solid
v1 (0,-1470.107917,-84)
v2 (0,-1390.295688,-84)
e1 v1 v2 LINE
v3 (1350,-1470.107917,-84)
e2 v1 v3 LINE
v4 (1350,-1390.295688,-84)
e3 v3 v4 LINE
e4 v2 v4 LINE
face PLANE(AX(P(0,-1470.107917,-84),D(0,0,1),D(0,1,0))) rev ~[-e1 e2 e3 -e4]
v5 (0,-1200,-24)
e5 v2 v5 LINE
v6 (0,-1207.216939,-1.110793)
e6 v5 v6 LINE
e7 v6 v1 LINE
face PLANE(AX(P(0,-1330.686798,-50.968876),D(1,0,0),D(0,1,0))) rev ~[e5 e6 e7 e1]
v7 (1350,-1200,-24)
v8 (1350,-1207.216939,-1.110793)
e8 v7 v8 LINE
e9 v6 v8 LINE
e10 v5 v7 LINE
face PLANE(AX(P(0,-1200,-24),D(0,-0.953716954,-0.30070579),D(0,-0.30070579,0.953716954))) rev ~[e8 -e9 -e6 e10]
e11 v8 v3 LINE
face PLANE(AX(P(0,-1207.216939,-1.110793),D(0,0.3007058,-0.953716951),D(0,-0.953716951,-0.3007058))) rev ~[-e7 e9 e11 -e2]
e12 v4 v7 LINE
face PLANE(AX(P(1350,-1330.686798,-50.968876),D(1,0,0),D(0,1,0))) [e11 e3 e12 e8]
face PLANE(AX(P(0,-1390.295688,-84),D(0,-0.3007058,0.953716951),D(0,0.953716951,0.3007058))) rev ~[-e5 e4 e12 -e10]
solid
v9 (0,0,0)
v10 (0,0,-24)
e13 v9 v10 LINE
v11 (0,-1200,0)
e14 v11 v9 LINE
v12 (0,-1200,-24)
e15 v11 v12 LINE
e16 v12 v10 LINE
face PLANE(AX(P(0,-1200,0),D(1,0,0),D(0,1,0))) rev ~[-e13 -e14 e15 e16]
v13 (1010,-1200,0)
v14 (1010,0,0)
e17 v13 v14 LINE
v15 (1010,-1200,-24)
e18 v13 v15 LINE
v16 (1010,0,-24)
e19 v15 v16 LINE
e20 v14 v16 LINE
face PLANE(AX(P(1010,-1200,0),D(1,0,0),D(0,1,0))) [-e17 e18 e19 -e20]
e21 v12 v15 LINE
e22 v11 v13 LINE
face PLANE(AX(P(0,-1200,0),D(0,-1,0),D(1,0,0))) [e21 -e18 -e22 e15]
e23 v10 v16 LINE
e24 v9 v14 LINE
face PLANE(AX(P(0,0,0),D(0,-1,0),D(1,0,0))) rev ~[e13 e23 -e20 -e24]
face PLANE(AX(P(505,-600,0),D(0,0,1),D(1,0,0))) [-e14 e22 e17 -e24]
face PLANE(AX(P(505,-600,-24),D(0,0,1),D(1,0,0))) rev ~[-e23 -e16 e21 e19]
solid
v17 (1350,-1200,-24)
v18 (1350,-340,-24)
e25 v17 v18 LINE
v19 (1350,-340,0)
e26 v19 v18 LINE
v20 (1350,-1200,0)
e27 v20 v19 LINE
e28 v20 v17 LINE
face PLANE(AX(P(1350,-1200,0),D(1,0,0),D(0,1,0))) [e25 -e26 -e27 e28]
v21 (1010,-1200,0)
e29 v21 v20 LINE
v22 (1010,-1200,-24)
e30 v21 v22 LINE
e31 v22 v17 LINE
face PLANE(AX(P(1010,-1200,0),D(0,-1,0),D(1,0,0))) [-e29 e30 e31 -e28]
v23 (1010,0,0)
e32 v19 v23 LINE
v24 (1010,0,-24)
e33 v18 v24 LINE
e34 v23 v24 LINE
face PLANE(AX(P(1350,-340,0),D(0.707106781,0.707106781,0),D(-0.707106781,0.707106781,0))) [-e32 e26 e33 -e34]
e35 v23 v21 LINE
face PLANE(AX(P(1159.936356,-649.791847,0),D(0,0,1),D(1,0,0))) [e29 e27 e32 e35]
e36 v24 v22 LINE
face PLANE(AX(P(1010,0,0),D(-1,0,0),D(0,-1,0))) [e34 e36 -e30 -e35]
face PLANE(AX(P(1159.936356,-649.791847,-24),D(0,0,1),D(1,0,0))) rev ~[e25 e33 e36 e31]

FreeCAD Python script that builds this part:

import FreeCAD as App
import Part
import Sketcher
from FreeCAD import Vector
Q = App.Units.Quantity

doc = App.newDocument("Part")
body = doc.addObject("PartDesign::Body", "Body")

# Sketch on XY plane
sketch1 = doc.addObject("Sketcher::SketchObject", "Sketch")
body.addObject(sketch1)
sketch1.AttachmentSupport = (doc.XY_Plane, [""])
sketch1.MapMode = "FlatFace"
sketch1.addGeometry(Part.LineSegment(Vector(0, 0, 0), Vector(0, -1200, 0)), False)
sketch1.addGeometry(Part.LineSegment(Vector(0, -1200, 0), Vector(1010, -1200, 0)), False)
sketch1.addGeometry(Part.LineSegment(Vector(1010, -1200, 0), Vector(1010, 0, 0)), False)
sketch1.addGeometry(Part.LineSegment(Vector(1010, 0, 0), Vector(0, 0, 0)), False)
sketch1.addConstraint(Sketcher.Constraint("Coincident", 0, 2, 1, 1))
sketch1.addConstraint(Sketcher.Constraint("Coincident", 1, 2, 2, 1))
sketch1.addConstraint(Sketcher.Constraint("Coincident", 2, 2, 3, 1))
sketch1.addConstraint(Sketcher.Constraint("Coincident", 3, 2, 0, 1))
sketch1.addConstraint(Sketcher.Constraint("Vertical", 0))
sketch1.addConstraint(Sketcher.Constraint("Horizontal", 1))
sketch1.addConstraint(Sketcher.Constraint("Vertical", 2))
sketch1.addConstraint(Sketcher.Constraint("Horizontal", 3))
sketch1.addConstraint(Sketcher.Constraint("Coincident", 3, 2, -1, 1))
sketch1.addConstraint(Sketcher.Constraint("DistanceX", 1, 1, 1, 2, Q("1010 mm")))
sketch1.addConstraint(Sketcher.Constraint("DistanceY", 0, 2, 0, 1, Q("1200 mm")))
pad1 = doc.addObject("PartDesign::Pad", "Pad")
body.addObject(pad1)
pad1.Profile = sketch1
pad1.Length = 24
pad1.Reversed = True
body2 = doc.addObject("PartDesign::Body", "Body001")

# Sketch on YZ plane
sketch2 = doc.addObject("Sketcher::SketchObject", "Sketch001")
body2.addObject(sketch2)
sketch2.AttachmentSupport = (doc.getObject("YZ_Plane001"), [""])
sketch2.MapMode = "FlatFace"
sketch2.addGeometry(Part.LineSegment(Vector(-1390, -84, 0), Vector(-1200, -24, 0)), False)
sketch2.addGeometry(Part.LineSegment(Vector(-1200, -24, 0), Vector(-1207, -1, 0)), False)
sketch2.addGeometry(Part.LineSegment(Vector(-1207, -1, 0), Vector(-1470, -84, 0)), False)
sketch2.addGeometry(Part.LineSegment(Vector(-1470, -84, 0), Vector(-1390, -84, 0)), False)
sketch2.addConstraint(Sketcher.Constraint("Coincident", 0, 2, 1, 1))
sketch2.addConstraint(Sketcher.Constraint("Coincident", 1, 2, 2, 1))
sketch2.addConstraint(Sketcher.Constraint("Coincident", 2, 2, 3, 1))
sketch2.addConstraint(Sketcher.Constraint("Coincident", 3, 2, 0, 1))
sketch2.addConstraint(Sketcher.Constraint("Horizontal", 3))
sketch2.addConstraint(Sketcher.Constraint("Perpendicular", 0, 1))
sketch2.addConstraint(Sketcher.Constraint("Perpendicular", 1, 2))
sketch2.addConstraint(Sketcher.Constraint("Distance", 1, Q("24 mm")))
sketch2.addConstraint(Sketcher.Constraint("DistanceX", 0, 2, -1, 1, Q("1200 mm")))
sketch2.addConstraint(Sketcher.Constraint("DistanceY", 0, 2, -1, 1, Q("24 mm")))
sketch2.addConstraint(Sketcher.Constraint("DistanceY", 2, 2, -1, 1, Q("84 mm")))
sketch2.addConstraint(Sketcher.Constraint("Angle", 0, Q("17.5 deg")))
pad2 = doc.addObject("PartDesign::Pad", "Pad001")
body2.addObject(pad2)
pad2.Profile = sketch2
pad2.Length = 1350
body3 = doc.addObject("PartDesign::Body", "Body002")

# Sketch on XY plane
sketch3 = doc.addObject("Sketcher::SketchObject", "Sketch002")
body3.addObject(sketch3)
sketch3.AttachmentSupport = (doc.getObject("XY_Plane002"), [""])
sketch3.MapMode = "FlatFace"
sketch3.addGeometry(Part.LineSegment(Vector(1350, -340, 0), Vector(1010, 0, 0)), False)
sketch3.addGeometry(Part.LineSegment(Vector(1010, 0, 0), Vector(1010, -1200, 0)), False)
sketch3.addGeometry(Part.LineSegment(Vector(1010, -1200, 0), Vector(1350, -1200, 0)), False)
sketch3.addGeometry(Part.LineSegment(Vector(1350, -1200, 0), Vector(1350, -340, 0)), False)
sketch3.addConstraint(Sketcher.Constraint("Coincident", 0, 2, 1, 1))
sketch3.addConstraint(Sketcher.Constraint("Coincident", 1, 2, 2, 1))
sketch3.addConstraint(Sketcher.Constraint("Coincident", 2, 2, 3, 1))
sketch3.addConstraint(Sketcher.Constraint("Coincident", 3, 2, 0, 1))
sketch3.addConstraint(Sketcher.Constraint("Vertical", 1))
sketch3.addConstraint(Sketcher.Constraint("Horizontal", 2))
sketch3.addConstraint(Sketcher.Constraint("Vertical", 3))
sketch3.addConstraint(Sketcher.Constraint("PointOnObject", 0, 2, -1))
sketch3.addConstraint(Sketcher.Constraint("DistanceX", 2, 1, 2, 2, Q("340 mm")))
sketch3.addConstraint(Sketcher.Constraint("DistanceY", 1, 2, 1, 1, Q("1200 mm")))
sketch3.addConstraint(Sketcher.Constraint("DistanceY", 3, 1, 3, 2, Q("860 mm")))
sketch3.addConstraint(Sketcher.Constraint("DistanceX", -1, 1, 0, 2, Q("1010 mm")))
pad3 = doc.addObject("PartDesign::Pad", "Pad002")
body3.addObject(pad3)
pad3.Profile = sketch3
pad3.Length = 24
pad3.Reversed = True

doc.recompute()
